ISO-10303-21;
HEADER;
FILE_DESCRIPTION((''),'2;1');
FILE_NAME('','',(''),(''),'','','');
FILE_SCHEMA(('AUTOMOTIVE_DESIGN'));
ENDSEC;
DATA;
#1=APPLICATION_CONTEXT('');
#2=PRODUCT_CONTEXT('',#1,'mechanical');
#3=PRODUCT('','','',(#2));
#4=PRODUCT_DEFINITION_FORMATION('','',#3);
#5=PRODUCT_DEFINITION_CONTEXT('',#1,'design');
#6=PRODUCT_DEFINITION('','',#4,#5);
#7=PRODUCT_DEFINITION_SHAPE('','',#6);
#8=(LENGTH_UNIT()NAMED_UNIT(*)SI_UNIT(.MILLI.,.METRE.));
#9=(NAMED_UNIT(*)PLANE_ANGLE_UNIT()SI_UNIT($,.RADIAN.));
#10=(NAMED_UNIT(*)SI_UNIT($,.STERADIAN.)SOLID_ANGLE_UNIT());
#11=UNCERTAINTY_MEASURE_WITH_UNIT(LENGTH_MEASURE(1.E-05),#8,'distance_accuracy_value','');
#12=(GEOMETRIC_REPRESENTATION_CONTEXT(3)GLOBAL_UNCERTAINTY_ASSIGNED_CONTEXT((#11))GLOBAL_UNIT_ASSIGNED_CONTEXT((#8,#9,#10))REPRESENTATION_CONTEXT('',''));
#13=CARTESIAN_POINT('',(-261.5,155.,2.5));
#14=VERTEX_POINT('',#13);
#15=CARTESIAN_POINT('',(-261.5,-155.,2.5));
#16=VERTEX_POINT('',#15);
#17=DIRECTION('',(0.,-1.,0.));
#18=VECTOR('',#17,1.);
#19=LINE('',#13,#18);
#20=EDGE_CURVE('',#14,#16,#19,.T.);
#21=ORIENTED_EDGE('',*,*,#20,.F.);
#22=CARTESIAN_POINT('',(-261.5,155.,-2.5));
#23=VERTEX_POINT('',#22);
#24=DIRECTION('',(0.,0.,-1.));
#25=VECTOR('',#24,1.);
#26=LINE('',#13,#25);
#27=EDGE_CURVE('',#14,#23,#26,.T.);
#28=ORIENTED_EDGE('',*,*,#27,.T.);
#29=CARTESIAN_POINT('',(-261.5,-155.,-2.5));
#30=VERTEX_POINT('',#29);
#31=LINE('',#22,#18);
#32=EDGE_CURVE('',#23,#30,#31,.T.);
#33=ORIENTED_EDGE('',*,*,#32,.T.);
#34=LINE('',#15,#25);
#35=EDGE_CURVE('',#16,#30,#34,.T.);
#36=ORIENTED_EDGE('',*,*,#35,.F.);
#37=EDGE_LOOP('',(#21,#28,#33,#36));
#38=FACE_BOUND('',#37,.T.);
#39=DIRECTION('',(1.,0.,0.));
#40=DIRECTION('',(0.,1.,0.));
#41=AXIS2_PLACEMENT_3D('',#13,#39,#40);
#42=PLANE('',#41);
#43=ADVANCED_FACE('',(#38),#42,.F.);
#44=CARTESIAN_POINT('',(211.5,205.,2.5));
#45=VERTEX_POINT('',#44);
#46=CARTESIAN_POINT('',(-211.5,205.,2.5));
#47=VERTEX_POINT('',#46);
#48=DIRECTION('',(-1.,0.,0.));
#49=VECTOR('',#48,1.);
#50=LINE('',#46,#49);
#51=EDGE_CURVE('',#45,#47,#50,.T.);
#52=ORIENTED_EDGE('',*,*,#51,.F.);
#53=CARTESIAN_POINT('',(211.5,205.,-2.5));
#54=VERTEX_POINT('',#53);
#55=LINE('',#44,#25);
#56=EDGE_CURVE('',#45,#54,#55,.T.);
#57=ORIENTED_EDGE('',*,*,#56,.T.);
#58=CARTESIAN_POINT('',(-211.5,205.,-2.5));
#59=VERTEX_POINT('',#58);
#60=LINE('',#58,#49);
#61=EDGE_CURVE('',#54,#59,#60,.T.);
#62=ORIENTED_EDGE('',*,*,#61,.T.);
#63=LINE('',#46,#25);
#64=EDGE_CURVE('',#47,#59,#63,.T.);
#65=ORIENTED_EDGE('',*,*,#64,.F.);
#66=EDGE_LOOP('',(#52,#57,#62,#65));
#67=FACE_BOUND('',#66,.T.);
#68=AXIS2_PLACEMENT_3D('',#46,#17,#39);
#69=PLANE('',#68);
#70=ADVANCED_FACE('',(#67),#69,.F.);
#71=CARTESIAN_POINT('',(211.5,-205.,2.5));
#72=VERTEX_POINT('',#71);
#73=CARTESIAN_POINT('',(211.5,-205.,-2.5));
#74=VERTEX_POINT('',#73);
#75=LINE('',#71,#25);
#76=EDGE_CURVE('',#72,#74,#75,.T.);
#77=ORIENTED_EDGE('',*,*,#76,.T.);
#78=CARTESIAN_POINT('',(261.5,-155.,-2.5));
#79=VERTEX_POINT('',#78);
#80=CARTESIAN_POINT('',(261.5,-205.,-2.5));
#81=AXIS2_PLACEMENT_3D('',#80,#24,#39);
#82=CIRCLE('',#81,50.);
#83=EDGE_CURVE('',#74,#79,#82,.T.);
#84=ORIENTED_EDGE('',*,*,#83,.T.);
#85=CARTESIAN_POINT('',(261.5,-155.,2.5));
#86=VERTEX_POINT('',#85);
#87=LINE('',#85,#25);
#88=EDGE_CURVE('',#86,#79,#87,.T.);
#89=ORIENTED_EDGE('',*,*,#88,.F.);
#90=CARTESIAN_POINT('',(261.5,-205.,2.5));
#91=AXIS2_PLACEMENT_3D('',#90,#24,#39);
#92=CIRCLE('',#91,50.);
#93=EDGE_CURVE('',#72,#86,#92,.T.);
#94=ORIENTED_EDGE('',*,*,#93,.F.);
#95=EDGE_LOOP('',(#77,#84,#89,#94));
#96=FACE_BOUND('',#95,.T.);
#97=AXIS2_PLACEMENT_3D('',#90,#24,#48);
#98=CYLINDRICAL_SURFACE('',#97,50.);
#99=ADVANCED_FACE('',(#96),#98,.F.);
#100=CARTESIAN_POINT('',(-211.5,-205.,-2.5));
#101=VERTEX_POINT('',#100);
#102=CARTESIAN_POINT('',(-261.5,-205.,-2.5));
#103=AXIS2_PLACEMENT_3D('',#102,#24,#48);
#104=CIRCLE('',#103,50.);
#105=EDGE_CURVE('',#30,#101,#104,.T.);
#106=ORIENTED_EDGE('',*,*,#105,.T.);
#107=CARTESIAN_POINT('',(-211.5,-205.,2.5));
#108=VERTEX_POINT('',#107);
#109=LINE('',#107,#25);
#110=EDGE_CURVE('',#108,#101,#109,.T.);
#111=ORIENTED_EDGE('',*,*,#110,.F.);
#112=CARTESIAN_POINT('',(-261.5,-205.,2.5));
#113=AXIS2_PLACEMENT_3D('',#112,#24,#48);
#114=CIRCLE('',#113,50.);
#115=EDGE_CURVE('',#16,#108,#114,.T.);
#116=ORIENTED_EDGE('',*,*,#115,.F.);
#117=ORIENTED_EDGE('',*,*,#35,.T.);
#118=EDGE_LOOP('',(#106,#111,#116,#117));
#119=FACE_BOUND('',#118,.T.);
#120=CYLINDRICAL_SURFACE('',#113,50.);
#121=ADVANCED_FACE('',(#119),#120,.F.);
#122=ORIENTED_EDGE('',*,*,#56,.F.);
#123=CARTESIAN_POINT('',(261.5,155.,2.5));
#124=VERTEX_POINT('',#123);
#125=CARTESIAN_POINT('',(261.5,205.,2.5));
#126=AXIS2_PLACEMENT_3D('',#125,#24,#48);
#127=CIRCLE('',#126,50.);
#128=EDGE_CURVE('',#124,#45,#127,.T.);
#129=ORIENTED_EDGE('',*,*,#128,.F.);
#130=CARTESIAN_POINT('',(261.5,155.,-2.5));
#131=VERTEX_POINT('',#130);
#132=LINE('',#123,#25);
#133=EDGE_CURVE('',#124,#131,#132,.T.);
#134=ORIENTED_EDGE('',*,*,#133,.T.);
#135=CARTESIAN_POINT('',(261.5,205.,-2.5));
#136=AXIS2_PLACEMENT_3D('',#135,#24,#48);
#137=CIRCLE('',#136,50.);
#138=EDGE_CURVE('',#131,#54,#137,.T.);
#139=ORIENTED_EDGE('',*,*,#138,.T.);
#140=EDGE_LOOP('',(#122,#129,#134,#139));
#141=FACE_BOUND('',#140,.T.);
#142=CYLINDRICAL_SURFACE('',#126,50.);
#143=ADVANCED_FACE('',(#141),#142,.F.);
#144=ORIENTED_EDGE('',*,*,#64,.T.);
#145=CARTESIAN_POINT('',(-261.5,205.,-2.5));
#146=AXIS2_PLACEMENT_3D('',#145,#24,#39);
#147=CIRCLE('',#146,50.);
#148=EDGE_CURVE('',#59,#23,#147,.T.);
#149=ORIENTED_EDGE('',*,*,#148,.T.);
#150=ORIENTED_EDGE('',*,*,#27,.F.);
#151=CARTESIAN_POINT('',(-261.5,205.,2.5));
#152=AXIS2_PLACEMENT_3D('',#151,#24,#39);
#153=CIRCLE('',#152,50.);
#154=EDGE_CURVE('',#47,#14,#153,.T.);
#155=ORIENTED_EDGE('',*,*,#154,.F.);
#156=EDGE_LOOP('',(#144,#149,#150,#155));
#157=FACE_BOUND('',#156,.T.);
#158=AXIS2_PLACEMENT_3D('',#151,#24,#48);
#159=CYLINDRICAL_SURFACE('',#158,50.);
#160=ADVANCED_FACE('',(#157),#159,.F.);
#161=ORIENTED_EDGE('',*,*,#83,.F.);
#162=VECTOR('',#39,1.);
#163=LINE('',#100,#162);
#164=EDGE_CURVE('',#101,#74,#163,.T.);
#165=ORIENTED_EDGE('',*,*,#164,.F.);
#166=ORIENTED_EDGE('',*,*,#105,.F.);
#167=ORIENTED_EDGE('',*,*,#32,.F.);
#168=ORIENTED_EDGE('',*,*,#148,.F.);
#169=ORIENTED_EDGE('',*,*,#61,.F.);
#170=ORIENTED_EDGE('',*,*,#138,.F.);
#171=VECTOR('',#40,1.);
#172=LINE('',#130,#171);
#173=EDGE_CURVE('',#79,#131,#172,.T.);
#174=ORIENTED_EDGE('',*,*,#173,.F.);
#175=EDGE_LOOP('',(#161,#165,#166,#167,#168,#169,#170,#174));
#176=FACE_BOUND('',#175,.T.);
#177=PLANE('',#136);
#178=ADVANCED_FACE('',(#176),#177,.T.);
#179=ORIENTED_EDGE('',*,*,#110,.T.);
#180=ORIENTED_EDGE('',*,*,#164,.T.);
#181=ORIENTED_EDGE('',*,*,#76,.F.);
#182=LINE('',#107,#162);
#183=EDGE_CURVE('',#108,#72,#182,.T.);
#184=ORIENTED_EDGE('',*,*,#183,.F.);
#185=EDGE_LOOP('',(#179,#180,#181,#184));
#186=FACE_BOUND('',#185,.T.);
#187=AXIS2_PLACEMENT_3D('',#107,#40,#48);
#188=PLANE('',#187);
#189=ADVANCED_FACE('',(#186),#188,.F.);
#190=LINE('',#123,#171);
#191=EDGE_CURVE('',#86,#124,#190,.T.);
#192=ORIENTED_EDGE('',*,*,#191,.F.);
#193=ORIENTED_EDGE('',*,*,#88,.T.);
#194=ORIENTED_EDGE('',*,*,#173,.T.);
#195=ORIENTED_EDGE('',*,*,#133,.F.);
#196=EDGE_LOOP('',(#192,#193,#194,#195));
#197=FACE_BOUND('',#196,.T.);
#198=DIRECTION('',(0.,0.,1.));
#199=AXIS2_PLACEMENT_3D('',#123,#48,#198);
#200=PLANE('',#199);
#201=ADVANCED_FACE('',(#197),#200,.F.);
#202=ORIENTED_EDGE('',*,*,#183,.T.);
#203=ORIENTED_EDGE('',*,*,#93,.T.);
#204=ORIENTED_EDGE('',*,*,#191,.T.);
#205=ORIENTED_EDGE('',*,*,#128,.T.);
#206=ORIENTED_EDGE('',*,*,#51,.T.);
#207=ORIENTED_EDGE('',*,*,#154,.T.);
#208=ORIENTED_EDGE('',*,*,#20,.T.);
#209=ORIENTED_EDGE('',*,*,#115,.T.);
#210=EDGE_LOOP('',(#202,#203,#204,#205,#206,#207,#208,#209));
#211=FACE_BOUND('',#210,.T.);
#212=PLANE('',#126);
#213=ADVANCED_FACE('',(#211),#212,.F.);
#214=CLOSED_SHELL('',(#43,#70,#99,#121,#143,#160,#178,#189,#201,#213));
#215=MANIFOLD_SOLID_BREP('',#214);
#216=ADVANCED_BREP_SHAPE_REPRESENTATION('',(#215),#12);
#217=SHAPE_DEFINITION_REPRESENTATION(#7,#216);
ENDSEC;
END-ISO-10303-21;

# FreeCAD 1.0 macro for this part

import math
import FreeCAD as App
import Part
import Sketcher
from FreeCAD import Vector
Q = App.Units.Quantity

doc = App.newDocument("Part")
body = doc.addObject("PartDesign::Body", "Body")

sketch1 = body.newObject("Sketcher::SketchObject", "Sketch")
sketch1.AttachmentSupport = (doc.getObject("XY_Plane"), [""])
sketch1.MapMode = "FlatFace"
sketch1.addGeometry([
    Part.LineSegment(Vector(211.5, 205, 0), Vector(-211.5, 205, 0)),
    Part.ArcOfCircle(Part.Circle(Vector(-261.5, 205, 0), Vector(0, 0, 1), 50), math.radians(-90), math.radians(0)),
    Part.LineSegment(Vector(-261.5, 155, 0), Vector(-261.5, -155, 0)),
    Part.ArcOfCircle(Part.Circle(Vector(-261.5, -205, 0), Vector(0, 0, 1), 50), math.radians(0), math.radians(90)),
    Part.LineSegment(Vector(-211.5, -205, 0), Vector(211.5, -205, 0)),
    Part.ArcOfCircle(Part.Circle(Vector(261.5, -205, 0), Vector(0, 0, 1), 50), math.radians(90), math.radians(180)),
    Part.LineSegment(Vector(261.5, -155, 0), Vector(261.5, 155, 0)),
    Part.ArcOfCircle(Part.Circle(Vector(261.5, 205, 0), Vector(0, 0, 1), 50), math.radians(-180), math.radians(-90)),
], False)
sketch1.addConstraint([
    Sketcher.Constraint("Coincident", 0, 2, 1, 2),
    Sketcher.Constraint("Coincident", 1, 1, 2, 1),
    Sketcher.Constraint("Coincident", 2, 2, 3, 2),
    Sketcher.Constraint("Coincident", 3, 1, 4, 1),
    Sketcher.Constraint("Coincident", 4, 2, 5, 2),
    Sketcher.Constraint("Coincident", 5, 1, 6, 1),
    Sketcher.Constraint("Coincident", 6, 2, 7, 2),
    Sketcher.Constraint("Coincident", 7, 1, 0, 1),
    Sketcher.Constraint("Horizontal", 0),
    Sketcher.Constraint("Vertical", 2),
    Sketcher.Constraint("Horizontal", 4),
    Sketcher.Constraint("Vertical", 6),
    Sketcher.Constraint("Equal", 1, 3),
    Sketcher.Constraint("Equal", 3, 5),
    Sketcher.Constraint("Equal", 5, 7),
    Sketcher.Constraint("Symmetric", 1, 3, 5, 3, -1, 1),
    Sketcher.Constraint("Symmetric", 3, 3, 7, 3, -1, 1),
    Sketcher.Constraint("Symmetric", 3, 3, 5, 3, -2),
    Sketcher.Constraint("Horizontal", 7, 3, 0, 2),
    Sketcher.Constraint("Horizontal", 5, 3, 3, 1),
    Sketcher.Constraint("Vertical", 3, 3, 1, 1),
    Sketcher.Constraint("Vertical", 7, 3, 5, 1),
    Sketcher.Constraint("Radius", 1, Q("50 mm")),
    Sketcher.Constraint("DistanceX", 0, 2, 0, 1, Q("423 mm")),
    Sketcher.Constraint("DistanceY", 2, 2, 2, 1, Q("310 mm")),
])
pad1 = body.newObject("PartDesign::Pad", "Pad")
pad1.Profile = sketch1
pad1.Length = 5
pad1.Midplane = True

doc.recompute()
